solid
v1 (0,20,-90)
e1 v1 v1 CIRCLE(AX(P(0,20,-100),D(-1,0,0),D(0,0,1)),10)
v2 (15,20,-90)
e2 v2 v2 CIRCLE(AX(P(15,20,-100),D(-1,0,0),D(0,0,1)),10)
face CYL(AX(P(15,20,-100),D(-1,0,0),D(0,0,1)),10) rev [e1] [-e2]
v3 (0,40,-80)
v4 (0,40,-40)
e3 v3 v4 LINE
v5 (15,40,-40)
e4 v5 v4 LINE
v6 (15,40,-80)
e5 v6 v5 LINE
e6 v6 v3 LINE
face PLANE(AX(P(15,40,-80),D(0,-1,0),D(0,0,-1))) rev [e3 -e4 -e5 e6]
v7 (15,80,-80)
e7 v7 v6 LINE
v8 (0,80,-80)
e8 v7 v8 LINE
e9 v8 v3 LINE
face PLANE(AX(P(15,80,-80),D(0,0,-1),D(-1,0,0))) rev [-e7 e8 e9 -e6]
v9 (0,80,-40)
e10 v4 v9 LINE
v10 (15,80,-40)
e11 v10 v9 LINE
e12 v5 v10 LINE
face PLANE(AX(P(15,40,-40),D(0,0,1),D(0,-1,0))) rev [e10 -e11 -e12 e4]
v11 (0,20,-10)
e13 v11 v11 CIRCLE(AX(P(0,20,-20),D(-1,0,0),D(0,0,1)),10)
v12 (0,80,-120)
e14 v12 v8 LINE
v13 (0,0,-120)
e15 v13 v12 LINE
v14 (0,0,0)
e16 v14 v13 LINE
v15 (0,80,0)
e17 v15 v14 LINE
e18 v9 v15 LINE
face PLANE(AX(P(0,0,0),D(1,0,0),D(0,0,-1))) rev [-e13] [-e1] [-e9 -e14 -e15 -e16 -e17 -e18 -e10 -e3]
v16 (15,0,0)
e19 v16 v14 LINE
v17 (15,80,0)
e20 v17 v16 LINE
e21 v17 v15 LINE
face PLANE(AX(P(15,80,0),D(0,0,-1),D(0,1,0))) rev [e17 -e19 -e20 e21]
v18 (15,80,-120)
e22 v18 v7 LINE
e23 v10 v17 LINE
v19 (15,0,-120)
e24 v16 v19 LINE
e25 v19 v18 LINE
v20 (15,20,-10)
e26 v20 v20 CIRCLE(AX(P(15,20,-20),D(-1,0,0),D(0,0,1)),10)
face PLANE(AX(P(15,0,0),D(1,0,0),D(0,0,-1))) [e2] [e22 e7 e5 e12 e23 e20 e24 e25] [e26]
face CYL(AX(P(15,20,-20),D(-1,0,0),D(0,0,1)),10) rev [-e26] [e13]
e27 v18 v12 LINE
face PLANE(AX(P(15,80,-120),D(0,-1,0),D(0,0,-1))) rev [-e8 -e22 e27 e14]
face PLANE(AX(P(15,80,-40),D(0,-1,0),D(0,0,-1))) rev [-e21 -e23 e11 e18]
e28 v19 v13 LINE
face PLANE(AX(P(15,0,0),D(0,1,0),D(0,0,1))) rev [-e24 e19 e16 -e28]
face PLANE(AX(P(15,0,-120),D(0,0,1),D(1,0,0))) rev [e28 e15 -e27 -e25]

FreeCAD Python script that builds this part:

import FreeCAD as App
import Part
import Sketcher

V = App.Vector
Q = App.Units.Quantity


def add_polygon(sketch, points):
    """Adds a closed chain of lines whose ends are joined by coincident constraints."""
    first, n = sketch.GeometryCount, len(points)
    for a, b in zip(points, points[1:] + points[:1]):
        sketch.addGeometry(Part.LineSegment(App.Vector(*a, 0), App.Vector(*b, 0)), False)
    for i in range(n):
        sketch.addConstraint(Sketcher.Constraint("Coincident", first + i, 2, first + (i + 1) % n, 1))

doc = App.newDocument("Part")
params = doc.addObject("Spreadsheet::Sheet", "Params")
for row, (alias, value) in enumerate([
    ("sketch1_width", "80 mm"),
    ("sketch1_width2", "40 mm"),
    ("pad1_length", "15 mm"),
    ("sketch2_diameter", "20 mm"),
    ("pocket1_length", "15 mm"),
], start=1):
    params.set(f"A{row}", alias)
    params.set(f"B{row}", "=" + value)
    params.setAlias(f"B{row}", alias)

body = doc.addObject("PartDesign::Body", "Body")

sketch1 = body.newObject("Sketcher::SketchObject", "Sketch")
sketch1.AttachmentSupport = (doc.getObject("YZ_Plane"), [""])
sketch1.MapMode = "FlatFace"
add_polygon(sketch1, [(0, 0), (0, -120), (80, -120), (80, -80), (40, -80), (40, -40), (80, -40), (80, 0)])
sketch1.addConstraint([
    Sketcher.Constraint("Vertical", 0),
    Sketcher.Constraint("Horizontal", 1),
    Sketcher.Constraint("Vertical", 2),
    Sketcher.Constraint("Horizontal", 3),
    Sketcher.Constraint("Vertical", 4),
    Sketcher.Constraint("Horizontal", 5),
    Sketcher.Constraint("Vertical", 6),
    Sketcher.Constraint("Horizontal", 7),
    Sketcher.Constraint("Coincident", 7, 2, -1, 1),
    Sketcher.Constraint("Vertical", 2, 2, 5, 2),
    Sketcher.Constraint("Equal", 5, 2),
    Sketcher.Constraint("Equal", 2, 4),
    Sketcher.Constraint("Equal", 4, 6),
    Sketcher.Constraint("DistanceX", 1, 1, 1, 2, Q("80 mm")),
    Sketcher.Constraint("DistanceX", 3, 2, 3, 1, Q("40 mm")),
])
sketch1.setExpression("Constraints[21]", "Params.sketch1_width")
sketch1.setExpression("Constraints[22]", "Params.sketch1_width2")
pad1 = body.newObject("PartDesign::Pad", "Pad")
pad1.Profile = sketch1
pad1.setExpression("Length", "Params.pad1_length")

sketch2 = body.newObject("Sketcher::SketchObject", "Sketch001")
sketch2.AttachmentSupport = (doc.getObject("YZ_Plane"), [""])
sketch2.MapMode = "FlatFace"
sketch2.addGeometry([
    Part.Circle(V(20, -100, 0), V(0, 0, 1), 10),
    Part.Circle(V(20, -20, 0), V(0, 0, 1), 10),
], False)
sketch2.addConstraint([
    Sketcher.Constraint("Equal", 0, 1),
    Sketcher.Constraint("Vertical", 0, 3, 1, 3),
    Sketcher.Constraint("Diameter", 0, Q("20 mm")),
    Sketcher.Constraint("DistanceX", -1, 1, 0, 3, Q("20 mm")),
    Sketcher.Constraint("DistanceY", 0, 3, -1, 1, Q("100 mm")),
    Sketcher.Constraint("DistanceY", 1, 3, -1, 1, Q("20 mm")),
])
sketch2.setExpression("Constraints[2]", "Params.sketch2_diameter")
pocket1 = body.newObject("PartDesign::Pocket", "Pocket")
pocket1.Profile = sketch2
pocket1.setExpression("Length", "Params.pocket1_length")
pocket1.Reversed = True

doc.recompute()
